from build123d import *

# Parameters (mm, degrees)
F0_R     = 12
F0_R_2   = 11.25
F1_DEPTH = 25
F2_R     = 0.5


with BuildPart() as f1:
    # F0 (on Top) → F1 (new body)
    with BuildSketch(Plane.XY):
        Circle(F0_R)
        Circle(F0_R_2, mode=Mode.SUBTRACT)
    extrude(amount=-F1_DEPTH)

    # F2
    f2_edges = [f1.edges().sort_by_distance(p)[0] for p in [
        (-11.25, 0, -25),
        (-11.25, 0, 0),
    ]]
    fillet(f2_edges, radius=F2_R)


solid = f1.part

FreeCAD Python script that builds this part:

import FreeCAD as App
import Part
import Sketcher

V = App.Vector
Q = App.Units.Quantity


def edges_at(feature, points):
    """Names of the edges that pass closest to the given points."""
    edges = feature.Shape.Edges
    near = lambda p: min(range(len(edges)), key=lambda i: edges[i].distToShape(Part.Vertex(*p))[0])
    return sorted({f"Edge{near(p) + 1}" for p in points})

doc = App.newDocument("Part")
params = doc.addObject("Spreadsheet::Sheet", "Params")
for row, (alias, value) in enumerate([
    ("sketch1_diameter", "24 mm"),
    ("sketch1_diameter2", "22.5 mm"),
    ("pad1_length", "25 mm"),
    ("fillet_radius", "0.5 mm"),
], start=1):
    params.set(f"A{row}", alias)
    params.set(f"B{row}", "=" + value)
    params.setAlias(f"B{row}", alias)

body = doc.addObject("PartDesign::Body", "Body")

# Sketch on XY plane
sketch1 = doc.addObject("Sketcher::SketchObject", "Sketch")
body.addObject(sketch1)
sketch1.AttachmentSupport = (doc.XY_Plane, [""])
sketch1.MapMode = "FlatFace"
sketch1.addGeometry(Part.Circle(V(0, 0, 0), V(0, 0, 1), 12), False)
sketch1.addGeometry(Part.Circle(V(0, 0, 0), V(0, 0, 1), 11.25), False)
sketch1.addConstraint(Sketcher.Constraint("Coincident", 0, 3, -1, 1))
sketch1.addConstraint(Sketcher.Constraint("Coincident", 1, 3, -1, 1))
sketch1.addConstraint(Sketcher.Constraint("Diameter", 0, Q("24 mm")))
sketch1.addConstraint(Sketcher.Constraint("Diameter", 1, Q("22.5 mm")))
sketch1.setExpression("Constraints[2]", "Params.sketch1_diameter")
sketch1.setExpression("Constraints[3]", "Params.sketch1_diameter2")
pad1 = doc.addObject("PartDesign::Pad", "Pad")
body.addObject(pad1)
pad1.Profile = sketch1
pad1.setExpression("Length", "Params.pad1_length")
pad1.Reversed = True
doc.recompute()

fillet = doc.addObject("PartDesign::Fillet", "Fillet")
body.addObject(fillet)
fillet.Base = (pad1, edges_at(pad1, [(-11.25, 0, -25), (-11.25, 0, 0)]))
fillet.setExpression("Radius", "Params.fillet_radius")

doc.recompute()
